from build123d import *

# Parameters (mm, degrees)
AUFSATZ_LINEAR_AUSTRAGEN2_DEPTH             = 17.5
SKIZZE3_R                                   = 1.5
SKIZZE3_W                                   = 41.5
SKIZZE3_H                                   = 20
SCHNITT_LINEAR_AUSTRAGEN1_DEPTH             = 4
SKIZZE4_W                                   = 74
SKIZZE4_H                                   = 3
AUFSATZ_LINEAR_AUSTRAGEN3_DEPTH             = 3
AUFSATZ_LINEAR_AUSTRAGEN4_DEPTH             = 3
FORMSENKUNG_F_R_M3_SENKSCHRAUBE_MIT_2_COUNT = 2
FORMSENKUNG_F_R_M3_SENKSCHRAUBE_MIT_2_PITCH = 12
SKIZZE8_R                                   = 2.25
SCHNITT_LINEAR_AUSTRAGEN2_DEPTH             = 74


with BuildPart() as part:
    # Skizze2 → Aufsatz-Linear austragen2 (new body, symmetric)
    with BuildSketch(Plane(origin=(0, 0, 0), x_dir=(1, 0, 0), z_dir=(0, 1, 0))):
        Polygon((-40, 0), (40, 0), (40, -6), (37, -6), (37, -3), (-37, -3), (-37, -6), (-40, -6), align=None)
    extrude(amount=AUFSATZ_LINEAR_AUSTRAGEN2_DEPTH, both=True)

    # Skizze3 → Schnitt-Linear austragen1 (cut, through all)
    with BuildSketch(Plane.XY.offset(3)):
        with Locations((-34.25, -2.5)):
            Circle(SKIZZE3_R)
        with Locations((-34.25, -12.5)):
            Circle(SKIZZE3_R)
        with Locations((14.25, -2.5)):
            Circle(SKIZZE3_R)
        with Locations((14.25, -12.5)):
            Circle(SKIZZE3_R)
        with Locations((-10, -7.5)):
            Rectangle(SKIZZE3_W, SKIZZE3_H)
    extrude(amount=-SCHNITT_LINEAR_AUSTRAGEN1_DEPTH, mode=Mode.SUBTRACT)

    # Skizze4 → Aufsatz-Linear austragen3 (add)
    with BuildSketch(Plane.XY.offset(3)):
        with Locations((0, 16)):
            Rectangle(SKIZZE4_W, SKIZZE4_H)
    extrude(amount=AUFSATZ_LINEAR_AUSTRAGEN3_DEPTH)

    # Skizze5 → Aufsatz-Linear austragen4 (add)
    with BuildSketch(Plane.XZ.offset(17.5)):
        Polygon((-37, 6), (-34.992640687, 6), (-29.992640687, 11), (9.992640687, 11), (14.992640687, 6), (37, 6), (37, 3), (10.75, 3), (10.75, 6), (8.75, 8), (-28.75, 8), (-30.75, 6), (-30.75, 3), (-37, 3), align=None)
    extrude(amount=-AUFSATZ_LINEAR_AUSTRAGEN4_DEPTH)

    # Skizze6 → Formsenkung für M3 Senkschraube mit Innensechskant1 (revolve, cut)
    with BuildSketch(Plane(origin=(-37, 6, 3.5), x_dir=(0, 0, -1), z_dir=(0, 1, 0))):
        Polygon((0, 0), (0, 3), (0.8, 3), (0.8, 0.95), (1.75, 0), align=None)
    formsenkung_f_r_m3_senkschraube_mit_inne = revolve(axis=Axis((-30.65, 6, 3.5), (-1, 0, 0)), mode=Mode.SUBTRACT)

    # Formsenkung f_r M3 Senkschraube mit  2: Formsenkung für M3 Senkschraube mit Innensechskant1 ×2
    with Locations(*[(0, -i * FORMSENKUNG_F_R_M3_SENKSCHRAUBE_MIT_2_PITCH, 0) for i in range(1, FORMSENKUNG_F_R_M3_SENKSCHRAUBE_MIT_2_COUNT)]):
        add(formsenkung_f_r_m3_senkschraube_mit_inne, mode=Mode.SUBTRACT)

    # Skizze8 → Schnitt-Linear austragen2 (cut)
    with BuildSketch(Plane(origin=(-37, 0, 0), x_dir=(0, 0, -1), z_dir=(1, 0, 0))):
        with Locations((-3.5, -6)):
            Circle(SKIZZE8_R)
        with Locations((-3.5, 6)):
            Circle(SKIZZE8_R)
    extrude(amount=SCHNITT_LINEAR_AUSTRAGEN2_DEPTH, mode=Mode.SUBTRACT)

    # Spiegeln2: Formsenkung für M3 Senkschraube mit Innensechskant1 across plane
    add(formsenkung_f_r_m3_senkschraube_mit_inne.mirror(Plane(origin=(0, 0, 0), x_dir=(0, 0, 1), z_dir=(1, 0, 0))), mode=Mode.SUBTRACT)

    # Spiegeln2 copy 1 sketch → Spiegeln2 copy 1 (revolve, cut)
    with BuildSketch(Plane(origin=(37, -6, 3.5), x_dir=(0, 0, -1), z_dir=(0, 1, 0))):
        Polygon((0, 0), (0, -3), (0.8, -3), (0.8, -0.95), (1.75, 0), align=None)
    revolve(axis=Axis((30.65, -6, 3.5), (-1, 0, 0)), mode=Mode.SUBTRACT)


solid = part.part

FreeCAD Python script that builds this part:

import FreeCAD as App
import Part
import Sketcher

V = App.Vector
Q = App.Units.Quantity

doc = App.newDocument("Part")
params = doc.addObject("Spreadsheet::Sheet", "Params")
for row, (alias, value) in enumerate([
    ("sketch1_width", "80 mm"),
    ("sketch1_width2", "3 mm"),
    ("sketch1_height", "6 mm"),
    ("pad1_length", "35 mm"),
    ("sketch2_diameter", "3 mm"),
    ("sketch2_height", "20 mm"),
    ("sketch2_width", "41.5 mm"),
    ("sketch3_width", "74 mm"),
    ("sketch3_height", "3 mm"),
    ("pad2_length", "3 mm"),
    ("sketch4_height", "3 mm"),
    ("sketch4_width", "37.5 mm"),
    ("sketch4_width2", "6.25 mm"),
    ("pad3_length", "3 mm"),
    ("sketch5_width", "3 mm"),
    ("sketch5_height", "0.8 mm"),
    ("sketch5_width2", "2.05 mm"),
    ("groove_angle", "360 deg"),
    ("linearpattern_pitch", "12 mm"),
    ("sketch6_diameter", "4.5 mm"),
    ("pocket2_length", "74 mm"),
    ("sketch7_width", "3 mm"),
    ("sketch7_height", "0.8 mm"),
    ("sketch7_width2", "2.05 mm"),
    ("groove2_angle", "360 deg"),
], start=1):
    params.set(f"A{row}", alias)
    params.set(f"B{row}", "=" + value)
    params.setAlias(f"B{row}", alias)

body = doc.addObject("PartDesign::Body", "Body")

sketch1 = body.newObject("Sketcher::SketchObject", "Sketch")
sketch1.AttachmentSupport = (doc.getObject("XZ_Plane"), [""])
sketch1.MapMode = "FlatFace"
sketch1.addGeometry([
    Part.LineSegment(V(40, 0, 0), V(-40, 0, 0)),
    Part.LineSegment(V(-40, 0, 0), V(-40, 6, 0)),
    Part.LineSegment(V(-40, 6, 0), V(-37, 6, 0)),
    Part.LineSegment(V(-37, 6, 0), V(-37, 3, 0)),
    Part.LineSegment(V(-37, 3, 0), V(37, 3, 0)),
    Part.LineSegment(V(37, 3, 0), V(37, 6, 0)),
    Part.LineSegment(V(37, 6, 0), V(40, 6, 0)),
    Part.LineSegment(V(40, 6, 0), V(40, 0, 0)),
], False)
sketch1.addConstraint([
    Sketcher.Constraint("Coincident", 0, 2, 1, 1),
    Sketcher.Constraint("Coincident", 1, 2, 2, 1),
    Sketcher.Constraint("Coincident", 2, 2, 3, 1),
    Sketcher.Constraint("Coincident", 3, 2, 4, 1),
    Sketcher.Constraint("Coincident", 4, 2, 5, 1),
    Sketcher.Constraint("Coincident", 5, 2, 6, 1),
    Sketcher.Constraint("Coincident", 6, 2, 7, 1),
    Sketcher.Constraint("Coincident", 7, 2, 0, 1),
    Sketcher.Constraint("Horizontal", 0),
    Sketcher.Constraint("Vertical", 1),
    Sketcher.Constraint("Horizontal", 2),
    Sketcher.Constraint("Vertical", 3),
    Sketcher.Constraint("Horizontal", 4),
    Sketcher.Constraint("Vertical", 5),
    Sketcher.Constraint("Horizontal", 6),
    Sketcher.Constraint("Vertical", 7),
    Sketcher.Constraint("Symmetric", 0, 2, 7, 2, -1, 1),
    Sketcher.Constraint("Symmetric", 2, 2, 5, 2, -2),
    Sketcher.Constraint("Equal", 6, 3),
    Sketcher.Constraint("DistanceX", 0, 2, 0, 1, 80.0),
    Sketcher.Constraint("DistanceX", 2, 1, 2, 2, 3.0),
    Sketcher.Constraint("DistanceY", 1, 1, 1, 2, 6.0),
])
sketch1.setExpression("Constraints[19]", "Params.sketch1_width")
sketch1.setExpression("Constraints[20]", "Params.sketch1_width2")
sketch1.setExpression("Constraints[21]", "Params.sketch1_height")
pad1 = body.newObject("PartDesign::Pad", "Pad")
pad1.Profile = sketch1
pad1.setExpression("Length", "Params.pad1_length")
pad1.Midplane = True

sketch2 = body.newObject("Sketcher::SketchObject", "Sketch001")
sketch2.AttachmentSupport = (doc.getObject("XY_Plane"), [""])
sketch2.MapMode = "FlatFace"
sketch2.AttachmentOffset = App.Placement(V(0, 0, 3), App.Rotation())
sketch2.addGeometry([
    Part.Circle(V(-34.2, -2.5, 0), V(0, 0, 1), 1.5),
    Part.Circle(V(-34.2, -12.5, 0), V(0, 0, 1), 1.5),
    Part.Circle(V(14.2, -2.5, 0), V(0, 0, 1), 1.5),
    Part.Circle(V(14.2, -12.5, 0), V(0, 0, 1), 1.5),
    Part.LineSegment(V(-30.8, 2.5, 0), V(-30.8, -17.5, 0)),
    Part.LineSegment(V(-30.8, -17.5, 0), V(10.8, -17.5, 0)),
    Part.LineSegment(V(10.8, -17.5, 0), V(10.8, 2.5, 0)),
    Part.LineSegment(V(10.8, 2.5, 0), V(-30.8, 2.5, 0)),
], False)
sketch2.addConstraint([
    Sketcher.Constraint("Coincident", 4, 2, 5, 1),
    Sketcher.Constraint("Coincident", 5, 2, 6, 1),
    Sketcher.Constraint("Coincident", 6, 2, 7, 1),
    Sketcher.Constraint("Coincident", 7, 2, 4, 1),
    Sketcher.Constraint("Vertical", 4),
    Sketcher.Constraint("Horizontal", 5),
    Sketcher.Constraint("Vertical", 6),
    Sketcher.Constraint("Horizontal", 7),
    Sketcher.Constraint("Equal", 0, 1),
    Sketcher.Constraint("Equal", 1, 2),
    Sketcher.Constraint("Equal", 2, 3),
    Sketcher.Constraint("Horizontal", 0, 3, 2, 3),
    Sketcher.Constraint("Horizontal", 1, 3, 3, 3),
    Sketcher.Constraint("Vertical", 0, 3, 1, 3),
    Sketcher.Constraint("Vertical", 2, 3, 3, 3),
    Sketcher.Constraint("Diameter", 0, 3.0),
    Sketcher.Constraint("DistanceY", 4, 2, 4, 1, 20.0),
    Sketcher.Constraint("DistanceX", 5, 1, 5, 2, 41.5),
    Sketcher.Constraint("DistanceY", 1, 3, 0, 3, 10.0),
    Sketcher.Constraint("DistanceY", 4, 2, 1, 3, 5.0),
    Sketcher.Constraint("DistanceX", 4, 2, 3, 3, 45.0),
    Sketcher.Constraint("DistanceX", 1, 3, 5, 2, 45.0),
    Sketcher.Constraint("DistanceY", 0, 3, -1, 1, 2.5),
    Sketcher.Constraint("DistanceX", 0, 3, -1, 1, 34.25),
])
sketch2.setExpression("Constraints[15]", "Params.sketch2_diameter")
sketch2.setExpression("Constraints[16]", "Params.sketch2_height")
sketch2.setExpression("Constraints[17]", "Params.sketch2_width")
pocket1 = body.newObject("PartDesign::Pocket", "Pocket")
pocket1.Profile = sketch2
pocket1.Type = "ThroughAll"

sketch3 = body.newObject("Sketcher::SketchObject", "Sketch002")
sketch3.AttachmentSupport = (doc.getObject("XY_Plane"), [""])
sketch3.MapMode = "FlatFace"
sketch3.AttachmentOffset = App.Placement(V(0, 0, 3), App.Rotation())
sketch3.addGeometry([
    Part.LineSegment(V(-37, 17.5, 0), V(-37, 14.5, 0)),
    Part.LineSegment(V(-37, 14.5, 0), V(37, 14.5, 0)),
    Part.LineSegment(V(37, 14.5, 0), V(37, 17.5, 0)),
    Part.LineSegment(V(37, 17.5, 0), V(-37, 17.5, 0)),
], False)
sketch3.addConstraint([
    Sketcher.Constraint("Coincident", 0, 2, 1, 1),
    Sketcher.Constraint("Coincident", 1, 2, 2, 1),
    Sketcher.Constraint("Coincident", 2, 2, 3, 1),
    Sketcher.Constraint("Coincident", 3, 2, 0, 1),
    Sketcher.Constraint("Vertical", 0),
    Sketcher.Constraint("Horizontal", 1),
    Sketcher.Constraint("Vertical", 2),
    Sketcher.Constraint("Horizontal", 3),
    Sketcher.Constraint("DistanceX", 1, 1, 1, 2, 74.0),
    Sketcher.Constraint("DistanceY", 0, 2, 0, 1, 3.0),
    Sketcher.Constraint("DistanceX", 0, 2, -1, 1, 37.0),
    Sketcher.Constraint("DistanceY", -1, 1, 0, 2, 14.5),
])
sketch3.setExpression("Constraints[8]", "Params.sketch3_width")
sketch3.setExpression("Constraints[9]", "Params.sketch3_height")
pad2 = body.newObject("PartDesign::Pad", "Pad001")
pad2.Profile = sketch3
pad2.setExpression("Length", "Params.pad2_length")

sketch4 = body.newObject("Sketcher::SketchObject", "Sketch003")
sketch4.AttachmentSupport = (doc.getObject("XZ_Plane"), [""])
sketch4.MapMode = "FlatFace"
sketch4.AttachmentOffset = App.Placement(V(0, 0, 17.5), App.Rotation())
sketch4.addGeometry([
    Part.LineSegment(V(-35, 6, 0), V(-37, 6, 0)),
    Part.LineSegment(V(-37, 6, 0), V(-37, 3, 0)),
    Part.LineSegment(V(-37, 3, 0), V(-30.8, 3, 0)),
    Part.LineSegment(V(-30.8, 3, 0), V(-30.8, 6, 0)),
    Part.LineSegment(V(-30.8, 6, 0), V(-28.8, 8, 0)),
    Part.LineSegment(V(-28.8, 8, 0), V(8.8, 8, 0)),
    Part.LineSegment(V(8.8, 8, 0), V(10.8, 6, 0)),
    Part.LineSegment(V(10.8, 6, 0), V(10.8, 3, 0)),
    Part.LineSegment(V(10.8, 3, 0), V(37, 3, 0)),
    Part.LineSegment(V(37, 3, 0), V(37, 6, 0)),
    Part.LineSegment(V(37, 6, 0), V(15, 6, 0)),
    Part.LineSegment(V(15, 6, 0), V(10, 11, 0)),
    Part.LineSegment(V(10, 11, 0), V(-30, 11, 0)),
    Part.LineSegment(V(-30, 11, 0), V(-35, 6, 0)),
], False)
sketch4.addConstraint([
    Sketcher.Constraint("Coincident", 0, 2, 1, 1),
    Sketcher.Constraint("Coincident", 1, 2, 2, 1),
    Sketcher.Constraint("Coincident", 2, 2, 3, 1),
    Sketcher.Constraint("Coincident", 3, 2, 4, 1),
    Sketcher.Constraint("Coincident", 4, 2, 5, 1),
    Sketcher.Constraint("Coincident", 5, 2, 6, 1),
    Sketcher.Constraint("Coincident", 6, 2, 7, 1),
    Sketcher.Constraint("Coincident", 7, 2, 8, 1),
    Sketcher.Constraint("Coincident", 8, 2, 9, 1),
    Sketcher.Constraint("Coincident", 9, 2, 10, 1),
    Sketcher.Constraint("Coincident", 10, 2, 11, 1),
    Sketcher.Constraint("Coincident", 11, 2, 12, 1),
    Sketcher.Constraint("Coincident", 12, 2, 13, 1),
    Sketcher.Constraint("Coincident", 13, 2, 0, 1),
    Sketcher.Constraint("Horizontal", 0),
    Sketcher.Constraint("Vertical", 1),
    Sketcher.Constraint("Horizontal", 2),
    Sketcher.Constraint("Vertical", 3),
    Sketcher.Constraint("Horizontal", 5),
    Sketcher.Constraint("Vertical", 7),
    Sketcher.Constraint("Horizontal", 8),
    Sketcher.Constraint("Vertical", 9),
    Sketcher.Constraint("Horizontal", 10),
    Sketcher.Constraint("Horizontal", 12),
    Sketcher.Constraint("Symmetric", 1, 2, 8, 2, -2),
    Sketcher.Constraint("Perpendicular", 4, 6),
    Sketcher.Constraint("Parallel", 6, 11),
    Sketcher.Constraint("Perpendicular", 11, 13),
    Sketcher.Constraint("Horizontal", 0, 2, 3, 2),
    Sketcher.Constraint("Horizontal", 3, 2, 6, 2),
    Sketcher.Constraint("Horizontal", 6, 2, 9, 2),
    Sketcher.Constraint("Equal", 4, 6),
    Sketcher.Constraint("DistanceY", 1, 2, 1, 1, 3.0),
    Sketcher.Constraint("DistanceX", 5, 1, 5, 2, 37.5),
    Sketcher.Constraint("DistanceX", 0, 2, -1, 1, 37.0),
    Sketcher.Constraint("DistanceY", -1, 1, 0, 2, 6.0),
    Sketcher.Constraint("DistanceY", -1, 1, 4, 2, 8.0),
    Sketcher.Constraint("DistanceY", -1, 1, 11, 2, 11.0),
    Sketcher.Constraint("DistanceX", 2, 1, 2, 2, 6.25),
    Sketcher.Constraint("DistanceX", 0, 2, 0, 1, 2.007359),
    Sketcher.Constraint("DistanceX", 10, 2, 10, 1, 22.007359),
])
sketch4.setExpression("Constraints[32]", "Params.sketch4_height")
sketch4.setExpression("Constraints[33]", "Params.sketch4_width")
sketch4.setExpression("Constraints[38]", "Params.sketch4_width2")
pad3 = body.newObject("PartDesign::Pad", "Pad002")
pad3.Profile = sketch4
pad3.setExpression("Length", "Params.pad3_length")
pad3.Reversed = True

sketch5 = body.newObject("Sketcher::SketchObject", "Sketch004")
sketch5.AttachmentSupport = (doc.getObject("XZ_Plane"), [""])
sketch5.MapMode = "FlatFace"
sketch5.AttachmentOffset = App.Placement(V(0, 0, -6), App.Rotation())
sketch5.addGeometry([
    Part.LineSegment(V(-40, 3.5, 0), V(-37, 3.5, 0)),
    Part.LineSegment(V(-37, 3.5, 0), V(-37, 1.8, 0)),
    Part.LineSegment(V(-37, 1.8, 0), V(-38, 2.7, 0)),
    Part.LineSegment(V(-38, 2.7, 0), V(-40, 2.7, 0)),
    Part.LineSegment(V(-40, 2.7, 0), V(-40, 3.5, 0)),
], False)
sketch5.addGeometry(Part.LineSegment(V(-37, 3.5, 0), V(-40, 3.5, 0)), True)
sketch5.addConstraint([
    Sketcher.Constraint("Coincident", 0, 2, 1, 1),
    Sketcher.Constraint("Coincident", 1, 2, 2, 1),
    Sketcher.Constraint("Coincident", 2, 2, 3, 1),
    Sketcher.Constraint("Coincident", 3, 2, 4, 1),
    Sketcher.Constraint("Coincident", 4, 2, 0, 1),
    Sketcher.Constraint("Horizontal", 0),
    Sketcher.Constraint("Vertical", 1),
    Sketcher.Constraint("Horizontal", 3),
    Sketcher.Constraint("Vertical", 4),
    Sketcher.Constraint("Horizontal", 5),
    Sketcher.Constraint("Coincident", 5, 1, 0, 2),
    Sketcher.Constraint("Vertical", 3, 2, 5, 2),
    Sketcher.Constraint("DistanceX", 0, 1, 0, 2, 3.0),
    Sketcher.Constraint("Angle", 2, Q("135 deg")),
    Sketcher.Constraint("DistanceY", 4, 1, 4, 2, 0.8),
    Sketcher.Constraint("DistanceX", 0, 2, -1, 1, 37.0),
    Sketcher.Constraint("DistanceX", 3, 2, 3, 1, 2.05),
    Sketcher.Constraint("DistanceY", -1, 1, 0, 2, 3.5),
])
sketch5.setExpression("Constraints[12]", "Params.sketch5_width")
sketch5.setExpression("Constraints[14]", "Params.sketch5_height")
sketch5.setExpression("Constraints[16]", "Params.sketch5_width2")
groove = body.newObject("PartDesign::Groove", "Groove")
groove.Profile = sketch5
groove.ReferenceAxis = (sketch5, ["Axis0"])
groove.setExpression("Angle", "Params.groove_angle")
doc.recompute()

linearpattern = body.newObject("PartDesign::LinearPattern", "LinearPattern")
linearpattern.Originals = [groove]
linearpattern.Direction = (doc.getObject("Y_Axis"), [""])
linearpattern.Mode = "offset"
linearpattern.setExpression("Offset", "Params.linearpattern_pitch")
linearpattern.Occurrences = 2
linearpattern.Reversed = True
body.Tip = linearpattern

sketch6 = body.newObject("Sketcher::SketchObject", "Sketch005")
sketch6.AttachmentSupport = (doc.getObject("YZ_Plane"), [""])
sketch6.MapMode = "FlatFace"
sketch6.AttachmentOffset = App.Placement(V(0, 0, -37), App.Rotation())
sketch6.addGeometry([
    Part.Circle(V(-6, 3.5, 0), V(0, 0, 1), 2.2),
    Part.Circle(V(6, 3.5, 0), V(0, 0, 1), 2.2),
], False)
sketch6.addConstraint([
    Sketcher.Constraint("Equal", 0, 1),
    Sketcher.Constraint("Symmetric", 0, 3, 1, 3, -2),
    Sketcher.Constraint("Diameter", 0, 4.5),
    Sketcher.Constraint("DistanceX", 0, 3, -1, 1, 6.0),
    Sketcher.Constraint("DistanceY", -1, 1, 0, 3, 3.5),
])
sketch6.setExpression("Constraints[2]", "Params.sketch6_diameter")
pocket2 = body.newObject("PartDesign::Pocket", "Pocket001")
pocket2.Profile = sketch6
pocket2.setExpression("Length", "Params.pocket2_length")
pocket2.Reversed = True
doc.recompute()

mirrored = body.newObject("PartDesign::Mirrored", "Mirrored")
mirrored.Originals = [groove]
mirrored.MirrorPlane = (doc.getObject("YZ_Plane"), [""])
body.Tip = mirrored

sketch7 = body.newObject("Sketcher::SketchObject", "Sketch006")
sketch7.AttachmentSupport = (doc.getObject("XZ_Plane"), [""])
sketch7.MapMode = "FlatFace"
sketch7.AttachmentOffset = App.Placement(V(0, 0, 6), App.Rotation())
sketch7.addGeometry([
    Part.LineSegment(V(37, 3.5, 0), V(40, 3.5, 0)),
    Part.LineSegment(V(40, 3.5, 0), V(40, 2.7, 0)),
    Part.LineSegment(V(40, 2.7, 0), V(38, 2.7, 0)),
    Part.LineSegment(V(38, 2.7, 0), V(37, 1.8, 0)),
    Part.LineSegment(V(37, 1.8, 0), V(37, 3.5, 0)),
], False)
sketch7.addGeometry(Part.LineSegment(V(40, 3.5, 0), V(37, 3.5, 0)), True)
sketch7.addConstraint([
    Sketcher.Constraint("Coincident", 0, 2, 1, 1),
    Sketcher.Constraint("Coincident", 1, 2, 2, 1),
    Sketcher.Constraint("Coincident", 2, 2, 3, 1),
    Sketcher.Constraint("Coincident", 3, 2, 4, 1),
    Sketcher.Constraint("Coincident", 4, 2, 0, 1),
    Sketcher.Constraint("Horizontal", 0),
    Sketcher.Constraint("Vertical", 1),
    Sketcher.Constraint("Horizontal", 2),
    Sketcher.Constraint("Vertical", 4),
    Sketcher.Constraint("Horizontal", 5),
    Sketcher.Constraint("Coincident", 5, 1, 0, 2),
    Sketcher.Constraint("Vertical", 3, 2, 5, 2),
    Sketcher.Constraint("DistanceX", 0, 1, 0, 2, 3.0),
    Sketcher.Constraint("Angle", 3, Q("-135 deg")),
    Sketcher.Constraint("DistanceY", 1, 2, 1, 1, 0.8),
    Sketcher.Constraint("DistanceX", -1, 1, 0, 2, 40.0),
    Sketcher.Constraint("DistanceX", 2, 2, 2, 1, 2.05),
    Sketcher.Constraint("DistanceY", -1, 1, 0, 2, 3.5),
])
sketch7.setExpression("Constraints[12]", "Params.sketch7_width")
sketch7.setExpression("Constraints[14]", "Params.sketch7_height")
sketch7.setExpression("Constraints[16]", "Params.sketch7_width2")
groove2 = body.newObject("PartDesign::Groove", "Groove001")
groove2.Profile = sketch7
groove2.ReferenceAxis = (sketch7, ["Axis0"])
groove2.setExpression("Angle", "Params.groove2_angle")

doc.recompute()
